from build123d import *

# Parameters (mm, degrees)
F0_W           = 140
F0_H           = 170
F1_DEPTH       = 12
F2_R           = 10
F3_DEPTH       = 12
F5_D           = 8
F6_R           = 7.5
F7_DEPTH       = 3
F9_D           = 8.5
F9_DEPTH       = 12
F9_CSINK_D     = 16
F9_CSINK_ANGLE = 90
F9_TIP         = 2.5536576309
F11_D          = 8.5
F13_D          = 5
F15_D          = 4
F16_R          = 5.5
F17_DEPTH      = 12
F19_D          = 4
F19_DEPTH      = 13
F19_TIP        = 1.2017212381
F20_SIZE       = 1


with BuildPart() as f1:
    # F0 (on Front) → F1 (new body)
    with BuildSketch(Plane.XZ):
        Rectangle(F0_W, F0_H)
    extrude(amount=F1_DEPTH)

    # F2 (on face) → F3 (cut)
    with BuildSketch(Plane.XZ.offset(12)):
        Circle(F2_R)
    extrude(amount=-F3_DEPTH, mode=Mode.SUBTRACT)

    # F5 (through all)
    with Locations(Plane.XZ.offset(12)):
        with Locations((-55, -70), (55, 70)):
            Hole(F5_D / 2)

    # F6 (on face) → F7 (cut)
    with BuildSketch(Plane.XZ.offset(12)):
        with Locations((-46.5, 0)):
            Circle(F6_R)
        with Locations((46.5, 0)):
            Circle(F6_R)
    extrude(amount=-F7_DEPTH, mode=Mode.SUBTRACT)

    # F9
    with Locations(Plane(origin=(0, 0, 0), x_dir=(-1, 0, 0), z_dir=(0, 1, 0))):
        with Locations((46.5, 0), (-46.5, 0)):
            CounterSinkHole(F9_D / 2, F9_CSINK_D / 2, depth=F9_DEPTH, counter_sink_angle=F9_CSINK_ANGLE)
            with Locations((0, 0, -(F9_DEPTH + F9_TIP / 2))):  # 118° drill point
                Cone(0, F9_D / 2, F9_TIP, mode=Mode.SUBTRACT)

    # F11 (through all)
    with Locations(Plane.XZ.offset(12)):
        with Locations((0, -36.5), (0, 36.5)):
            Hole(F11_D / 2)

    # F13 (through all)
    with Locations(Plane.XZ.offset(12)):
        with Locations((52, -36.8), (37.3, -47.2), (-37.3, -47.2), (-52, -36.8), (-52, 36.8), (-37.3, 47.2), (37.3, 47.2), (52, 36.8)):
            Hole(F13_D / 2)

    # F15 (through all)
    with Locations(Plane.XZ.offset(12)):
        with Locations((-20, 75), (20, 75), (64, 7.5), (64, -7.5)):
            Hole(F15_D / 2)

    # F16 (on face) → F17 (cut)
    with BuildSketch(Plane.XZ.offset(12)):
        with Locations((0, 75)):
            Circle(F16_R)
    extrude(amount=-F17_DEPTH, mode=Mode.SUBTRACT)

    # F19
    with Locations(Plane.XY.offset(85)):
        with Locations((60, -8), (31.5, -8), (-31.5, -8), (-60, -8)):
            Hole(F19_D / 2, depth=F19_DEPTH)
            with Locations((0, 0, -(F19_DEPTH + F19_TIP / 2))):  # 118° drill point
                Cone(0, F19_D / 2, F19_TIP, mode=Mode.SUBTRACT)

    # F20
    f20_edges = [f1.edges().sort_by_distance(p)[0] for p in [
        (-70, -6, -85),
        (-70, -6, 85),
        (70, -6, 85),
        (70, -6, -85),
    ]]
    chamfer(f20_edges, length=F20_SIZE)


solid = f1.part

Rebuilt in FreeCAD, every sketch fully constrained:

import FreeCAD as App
import Part
import Sketcher
Q = App.Units.Quantity


def edges_at(feature, points):
    """Names of the edges that pass closest to the given points."""
    edges = feature.Shape.Edges
    near = lambda p: min(range(len(edges)), key=lambda i: edges[i].distToShape(Part.Vertex(*p))[0])
    return sorted({f"Edge{near(p) + 1}" for p in points})


def add_polygon(sketch, points):
    """Adds a closed chain of lines whose ends are joined by coincident constraints."""
    first, n = sketch.GeometryCount, len(points)
    for a, b in zip(points, points[1:] + points[:1]):
        sketch.addGeometry(Part.LineSegment(App.Vector(*a, 0), App.Vector(*b, 0)), False)
    for i in range(n):
        sketch.addConstraint(Sketcher.Constraint("Coincident", first + i, 2, first + (i + 1) % n, 1))

doc = App.newDocument("Part")
body = doc.addObject("PartDesign::Body", "Body")

# Sketch on XZ plane
sketch1 = doc.addObject("Sketcher::SketchObject", "Sketch")
body.addObject(sketch1)
sketch1.AttachmentSupport = (doc.XZ_Plane, [""])
sketch1.MapMode = "FlatFace"
add_polygon(sketch1, [(-70, 85), (-70, -85), (70, -85), (70, 85)])  # lines 0-3
sketch1.addConstraint(Sketcher.Constraint("Vertical", 0))
sketch1.addConstraint(Sketcher.Constraint("Horizontal", 1))
sketch1.addConstraint(Sketcher.Constraint("Vertical", 2))
sketch1.addConstraint(Sketcher.Constraint("Horizontal", 3))
sketch1.addConstraint(Sketcher.Constraint("Symmetric", 0, 2, 2, 2, -1, 1))
sketch1.addConstraint(Sketcher.Constraint("DistanceX", 1, 1, 1, 2, Q("140 mm")))
sketch1.addConstraint(Sketcher.Constraint("DistanceY", 0, 2, 0, 1, Q("170 mm")))
pad1 = doc.addObject("PartDesign::Pad", "Pad")
body.addObject(pad1)
pad1.Profile = sketch1
pad1.Length = 12

# Sketch on XZ plane
sketch2 = doc.addObject("Sketcher::SketchObject", "Sketch001")
body.addObject(sketch2)
sketch2.AttachmentSupport = (doc.XZ_Plane, [""])
sketch2.MapMode = "FlatFace"
sketch2.AttachmentOffset = App.Placement(App.Vector(0, 0, 12), App.Rotation())
sketch2.addGeometry(Part.Circle(App.Vector(0, 0, 0), App.Vector(0, 0, 1), 10), False)
sketch2.addConstraint(Sketcher.Constraint("Coincident", 0, 3, -1, 1))
sketch2.addConstraint(Sketcher.Constraint("Diameter", 0, Q("20 mm")))
pocket1 = doc.addObject("PartDesign::Pocket", "Pocket")
body.addObject(pocket1)
pocket1.Profile = sketch2
pocket1.Length = 12

# Sketch on XZ plane
sketch3 = doc.addObject("Sketcher::SketchObject", "Sketch002")
body.addObject(sketch3)
sketch3.AttachmentSupport = (doc.XZ_Plane, [""])
sketch3.MapMode = "FlatFace"
sketch3.AttachmentOffset = App.Placement(App.Vector(0, 0, 12), App.Rotation())
sketch3.addGeometry(Part.Circle(App.Vector(-55, -70, 0), App.Vector(0, 0, 1), 4), False)
sketch3.addGeometry(Part.Circle(App.Vector(55, 70, 0), App.Vector(0, 0, 1), 4), False)
sketch3.addConstraint(Sketcher.Constraint("Equal", 0, 1))
sketch3.addConstraint(Sketcher.Constraint("Symmetric", 0, 3, 1, 3, -1, 1))
sketch3.addConstraint(Sketcher.Constraint("Diameter", 0, Q("8 mm")))
sketch3.addConstraint(Sketcher.Constraint("DistanceX", 0, 3, -1, 1, Q("55 mm")))
sketch3.addConstraint(Sketcher.Constraint("DistanceY", 0, 3, -1, 1, Q("70 mm")))
doc.recompute()
hole = doc.addObject("PartDesign::Hole", "Hole")
body.addObject(hole)
hole.Profile = sketch3
hole.ThreadType = "None"
hole.Diameter = 8
hole.DepthType = "ThroughAll"

# Sketch on XZ plane
sketch4 = doc.addObject("Sketcher::SketchObject", "Sketch003")
body.addObject(sketch4)
sketch4.AttachmentSupport = (doc.XZ_Plane, [""])
sketch4.MapMode = "FlatFace"
sketch4.AttachmentOffset = App.Placement(App.Vector(0, 0, 12), App.Rotation())
sketch4.addGeometry(Part.Circle(App.Vector(-46, 0, 0), App.Vector(0, 0, 1), 8), False)
sketch4.addGeometry(Part.Circle(App.Vector(46, 0, 0), App.Vector(0, 0, 1), 8), False)
sketch4.addConstraint(Sketcher.Constraint("Equal", 0, 1))
sketch4.addConstraint(Sketcher.Constraint("Symmetric", 0, 3, 1, 3, -1, 1))
sketch4.addConstraint(Sketcher.Constraint("PointOnObject", 0, 3, -1))
sketch4.addConstraint(Sketcher.Constraint("Diameter", 0, Q("15 mm")))
sketch4.addConstraint(Sketcher.Constraint("DistanceX", 0, 3, 1, 3, Q("93 mm")))
pocket2 = doc.addObject("PartDesign::Pocket", "Pocket001")
body.addObject(pocket2)
pocket2.Profile = sketch4
pocket2.Length = 3

# Sketch on XZ plane
sketch5 = doc.addObject("Sketcher::SketchObject", "Sketch004")
body.addObject(sketch5)
sketch5.AttachmentSupport = (doc.XZ_Plane, [""])
sketch5.MapMode = "FlatFace"
sketch5.addGeometry(Part.Circle(App.Vector(-46.5, 0, 0), App.Vector(0, 0, 1), 4.2), False)
sketch5.addGeometry(Part.Circle(App.Vector(46.5, 0, 0), App.Vector(0, 0, 1), 4.2), False)
sketch5.addConstraint(Sketcher.Constraint("Equal", 0, 1))
sketch5.addConstraint(Sketcher.Constraint("Symmetric", 0, 3, 1, 3, -1, 1))
sketch5.addConstraint(Sketcher.Constraint("PointOnObject", 0, 3, -1))
sketch5.addConstraint(Sketcher.Constraint("Diameter", 0, Q("8.5 mm")))
sketch5.addConstraint(Sketcher.Constraint("DistanceX", 0, 3, 1, 3, Q("93 mm")))
doc.recompute()
hole2 = doc.addObject("PartDesign::Hole", "Hole001")
body.addObject(hole2)
hole2.Profile = sketch5
hole2.ThreadType = "None"
hole2.Diameter = 8.5
hole2.DepthType = "Dimension"
hole2.Depth = 12
hole2.DrillPoint = "Angled"
hole2.DrillPointAngle = 118
hole2.HoleCutType = "Countersink"
hole2.HoleCutDiameter = 16
hole2.HoleCutCountersinkAngle = 90
hole2.Reversed = True

# Sketch on XZ plane
sketch6 = doc.addObject("Sketcher::SketchObject", "Sketch005")
body.addObject(sketch6)
sketch6.AttachmentSupport = (doc.XZ_Plane, [""])
sketch6.MapMode = "FlatFace"
sketch6.AttachmentOffset = App.Placement(App.Vector(0, 0, 12), App.Rotation())
sketch6.addGeometry(Part.Circle(App.Vector(0, -36.5, 0), App.Vector(0, 0, 1), 4.2), False)
sketch6.addGeometry(Part.Circle(App.Vector(0, 36.5, 0), App.Vector(0, 0, 1), 4.2), False)
sketch6.addConstraint(Sketcher.Constraint("Equal", 0, 1))
sketch6.addConstraint(Sketcher.Constraint("Symmetric", 0, 3, 1, 3, -1, 1))
sketch6.addConstraint(Sketcher.Constraint("PointOnObject", 0, 3, -2))
sketch6.addConstraint(Sketcher.Constraint("Diameter", 0, Q("8.5 mm")))
sketch6.addConstraint(Sketcher.Constraint("DistanceY", 0, 3, 1, 3, Q("73 mm")))
doc.recompute()
hole3 = doc.addObject("PartDesign::Hole", "Hole002")
body.addObject(hole3)
hole3.Profile = sketch6
hole3.ThreadType = "None"
hole3.Diameter = 8.5
hole3.DepthType = "ThroughAll"

# Sketch on XZ plane
sketch7 = doc.addObject("Sketcher::SketchObject", "Sketch006")
body.addObject(sketch7)
sketch7.AttachmentSupport = (doc.XZ_Plane, [""])
sketch7.MapMode = "FlatFace"
sketch7.AttachmentOffset = App.Placement(App.Vector(0, 0, 12), App.Rotation())
sketch7.addGeometry(Part.Circle(App.Vector(52, -36.8, 0), App.Vector(0, 0, 1), 2.5), False)
sketch7.addGeometry(Part.Circle(App.Vector(37.3, -47.2, 0), App.Vector(0, 0, 1), 2.5), False)
sketch7.addGeometry(Part.Circle(App.Vector(-37.3, -47.2, 0), App.Vector(0, 0, 1), 2.5), False)
sketch7.addGeometry(Part.Circle(App.Vector(-52, -36.8, 0), App.Vector(0, 0, 1), 2.5), False)
sketch7.addGeometry(Part.Circle(App.Vector(-52, 36.8, 0), App.Vector(0, 0, 1), 2.5), False)
sketch7.addGeometry(Part.Circle(App.Vector(-37.3, 47.2, 0), App.Vector(0, 0, 1), 2.5), False)
sketch7.addGeometry(Part.Circle(App.Vector(37.3, 47.2, 0), App.Vector(0, 0, 1), 2.5), False)
sketch7.addGeometry(Part.Circle(App.Vector(52, 36.8, 0), App.Vector(0, 0, 1), 2.5), False)
sketch7.addConstraint(Sketcher.Constraint("Equal", 0, 1))
sketch7.addConstraint(Sketcher.Constraint("Equal", 1, 2))
sketch7.addConstraint(Sketcher.Constraint("Equal", 2, 3))
sketch7.addConstraint(Sketcher.Constraint("Equal", 3, 4))
sketch7.addConstraint(Sketcher.Constraint("Equal", 4, 5))
sketch7.addConstraint(Sketcher.Constraint("Equal", 5, 6))
sketch7.addConstraint(Sketcher.Constraint("Equal", 6, 7))
sketch7.addConstraint(Sketcher.Constraint("Symmetric", 0, 3, 4, 3, -1, 1))
sketch7.addConstraint(Sketcher.Constraint("Symmetric", 1, 3, 5, 3, -1, 1))
sketch7.addConstraint(Sketcher.Constraint("Symmetric", 2, 3, 6, 3, -1, 1))
sketch7.addConstraint(Sketcher.Constraint("Symmetric", 3, 3, 7, 3, -1, 1))
sketch7.addConstraint(Sketcher.Constraint("Symmetric", 1, 3, 2, 3, -2))
sketch7.addConstraint(Sketcher.Constraint("Symmetric", 0, 3, 3, 3, -2))
sketch7.addConstraint(Sketcher.Constraint("Diameter", 0, Q("5 mm")))
sketch7.addConstraint(Sketcher.Constraint("DistanceX", -1, 1, 0, 3, Q("52 mm")))
sketch7.addConstraint(Sketcher.Constraint("DistanceY", 2, 3, 4, 3, Q("84 mm")))
sketch7.addConstraint(Sketcher.Constraint("DistanceY", 0, 3, -1, 1, Q("36.8 mm")))
sketch7.addConstraint(Sketcher.Constraint("DistanceX", -1, 1, 1, 3, Q("37.3 mm")))
doc.recompute()
hole4 = doc.addObject("PartDesign::Hole", "Hole003")
body.addObject(hole4)
hole4.Profile = sketch7
hole4.ThreadType = "None"
hole4.Diameter = 5
hole4.DepthType = "ThroughAll"

# Sketch on XZ plane
sketch8 = doc.addObject("Sketcher::SketchObject", "Sketch007")
body.addObject(sketch8)
sketch8.AttachmentSupport = (doc.XZ_Plane, [""])
sketch8.MapMode = "FlatFace"
sketch8.AttachmentOffset = App.Placement(App.Vector(0, 0, 12), App.Rotation())
sketch8.addGeometry(Part.Circle(App.Vector(-20, 75, 0), App.Vector(0, 0, 1), 2), False)
sketch8.addGeometry(Part.Circle(App.Vector(20, 75, 0), App.Vector(0, 0, 1), 2), False)
sketch8.addGeometry(Part.Circle(App.Vector(64, 7.5, 0), App.Vector(0, 0, 1), 2), False)
sketch8.addGeometry(Part.Circle(App.Vector(64, -7.5, 0), App.Vector(0, 0, 1), 2), False)
sketch8.addConstraint(Sketcher.Constraint("Equal", 0, 1))
sketch8.addConstraint(Sketcher.Constraint("Equal", 1, 2))
sketch8.addConstraint(Sketcher.Constraint("Equal", 2, 3))
sketch8.addConstraint(Sketcher.Constraint("Symmetric", 0, 3, 1, 3, -2))
sketch8.addConstraint(Sketcher.Constraint("Symmetric", 2, 3, 3, 3, -1))
sketch8.addConstraint(Sketcher.Constraint("Diameter", 0, Q("4 mm")))
sketch8.addConstraint(Sketcher.Constraint("DistanceX", 0, 3, -1, 1, Q("20 mm")))
sketch8.addConstraint(Sketcher.Constraint("DistanceY", -1, 1, 0, 3, Q("75 mm")))
sketch8.addConstraint(Sketcher.Constraint("DistanceX", -1, 1, 2, 3, Q("64 mm")))
sketch8.addConstraint(Sketcher.Constraint("DistanceY", 3, 3, 2, 3, Q("15 mm")))
doc.recompute()
hole5 = doc.addObject("PartDesign::Hole", "Hole004")
body.addObject(hole5)
hole5.Profile = sketch8
hole5.ThreadType = "None"
hole5.Diameter = 4
hole5.DepthType = "ThroughAll"

# Sketch on XZ plane
sketch9 = doc.addObject("Sketcher::SketchObject", "Sketch008")
body.addObject(sketch9)
sketch9.AttachmentSupport = (doc.XZ_Plane, [""])
sketch9.MapMode = "FlatFace"
sketch9.AttachmentOffset = App.Placement(App.Vector(0, 0, 12), App.Rotation())
sketch9.addGeometry(Part.Circle(App.Vector(0, 75, 0), App.Vector(0, 0, 1), 6), False)
sketch9.addConstraint(Sketcher.Constraint("PointOnObject", 0, 3, -2))
sketch9.addConstraint(Sketcher.Constraint("Diameter", 0, Q("11 mm")))
sketch9.addConstraint(Sketcher.Constraint("DistanceY", -1, 1, 0, 3, Q("75 mm")))
pocket3 = doc.addObject("PartDesign::Pocket", "Pocket002")
body.addObject(pocket3)
pocket3.Profile = sketch9
pocket3.Length = 12

# Sketch on XY plane
sketch10 = doc.addObject("Sketcher::SketchObject", "Sketch009")
body.addObject(sketch10)
sketch10.AttachmentSupport = (doc.XY_Plane, [""])
sketch10.MapMode = "FlatFace"
sketch10.AttachmentOffset = App.Placement(App.Vector(0, 0, 85), App.Rotation())
sketch10.addGeometry(Part.Circle(App.Vector(60, -8, 0), App.Vector(0, 0, 1), 2), False)
sketch10.addGeometry(Part.Circle(App.Vector(31.5, -8, 0), App.Vector(0, 0, 1), 2), False)
sketch10.addGeometry(Part.Circle(App.Vector(-31.5, -8, 0), App.Vector(0, 0, 1), 2), False)
sketch10.addGeometry(Part.Circle(App.Vector(-60, -8, 0), App.Vector(0, 0, 1), 2), False)
sketch10.addConstraint(Sketcher.Constraint("Equal", 0, 1))
sketch10.addConstraint(Sketcher.Constraint("Equal", 1, 2))
sketch10.addConstraint(Sketcher.Constraint("Equal", 2, 3))
sketch10.addConstraint(Sketcher.Constraint("Symmetric", 1, 3, 2, 3, -2))
sketch10.addConstraint(Sketcher.Constraint("Symmetric", 0, 3, 3, 3, -2))
sketch10.addConstraint(Sketcher.Constraint("Horizontal", 0, 3, 1, 3))
sketch10.addConstraint(Sketcher.Constraint("Diameter", 0, Q("4 mm")))
sketch10.addConstraint(Sketcher.Constraint("DistanceX", -1, 1, 0, 3, Q("60 mm")))
sketch10.addConstraint(Sketcher.Constraint("DistanceY", 0, 3, -1, 1, Q("8 mm")))
sketch10.addConstraint(Sketcher.Constraint("DistanceX", 2, 3, 1, 3, Q("63 mm")))
doc.recompute()
hole6 = doc.addObject("PartDesign::Hole", "Hole005")
body.addObject(hole6)
hole6.Profile = sketch10
hole6.ThreadType = "None"
hole6.Diameter = 4
hole6.DepthType = "Dimension"
hole6.Depth = 13
hole6.DrillPoint = "Angled"
hole6.DrillPointAngle = 118
doc.recompute()

chamfer = doc.addObject("PartDesign::Chamfer", "Chamfer")
body.addObject(chamfer)
chamfer.Base = (hole6, edges_at(hole6, [
    (-70, -6, -85),
    (-70, -6, 85),
    (70, -6, 85),
    (70, -6, -85),
]))
chamfer.Size = 1

doc.recompute()
